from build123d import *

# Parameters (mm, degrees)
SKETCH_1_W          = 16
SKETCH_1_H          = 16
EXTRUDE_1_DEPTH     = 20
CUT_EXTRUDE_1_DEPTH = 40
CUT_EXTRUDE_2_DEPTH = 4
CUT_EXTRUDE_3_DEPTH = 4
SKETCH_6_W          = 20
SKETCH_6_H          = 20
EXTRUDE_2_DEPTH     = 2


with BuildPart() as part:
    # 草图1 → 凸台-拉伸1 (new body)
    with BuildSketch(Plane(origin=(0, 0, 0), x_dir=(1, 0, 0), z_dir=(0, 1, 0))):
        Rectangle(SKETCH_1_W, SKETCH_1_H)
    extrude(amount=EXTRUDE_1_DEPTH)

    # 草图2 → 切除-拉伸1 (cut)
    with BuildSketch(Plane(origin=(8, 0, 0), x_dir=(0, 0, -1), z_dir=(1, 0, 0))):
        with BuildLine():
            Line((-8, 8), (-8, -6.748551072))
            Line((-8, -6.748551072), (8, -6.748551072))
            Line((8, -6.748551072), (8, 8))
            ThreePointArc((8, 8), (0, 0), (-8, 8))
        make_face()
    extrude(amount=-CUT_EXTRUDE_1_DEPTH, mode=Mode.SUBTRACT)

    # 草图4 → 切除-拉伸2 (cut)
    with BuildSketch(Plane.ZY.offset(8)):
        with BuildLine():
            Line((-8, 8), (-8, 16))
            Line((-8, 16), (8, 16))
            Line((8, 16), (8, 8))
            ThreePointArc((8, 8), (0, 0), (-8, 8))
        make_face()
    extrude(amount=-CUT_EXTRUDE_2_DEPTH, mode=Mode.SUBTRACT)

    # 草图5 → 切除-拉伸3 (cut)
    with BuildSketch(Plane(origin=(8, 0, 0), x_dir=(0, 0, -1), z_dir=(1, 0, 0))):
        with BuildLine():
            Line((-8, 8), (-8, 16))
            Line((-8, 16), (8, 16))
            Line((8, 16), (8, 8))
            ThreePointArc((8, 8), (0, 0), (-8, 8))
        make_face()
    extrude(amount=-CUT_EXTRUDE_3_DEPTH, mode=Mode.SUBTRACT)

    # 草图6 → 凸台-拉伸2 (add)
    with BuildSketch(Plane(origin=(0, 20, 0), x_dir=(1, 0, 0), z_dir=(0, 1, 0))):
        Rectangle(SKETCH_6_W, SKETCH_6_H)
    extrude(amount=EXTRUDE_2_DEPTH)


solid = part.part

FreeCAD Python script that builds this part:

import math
import FreeCAD as App
import Part
import Sketcher
Q = App.Units.Quantity


def add_polygon(sketch, points):
    """Adds a closed chain of lines whose ends are joined by coincident constraints."""
    first, n = sketch.GeometryCount, len(points)
    for a, b in zip(points, points[1:] + points[:1]):
        sketch.addGeometry(Part.LineSegment(App.Vector(*a, 0), App.Vector(*b, 0)), False)
    for i in range(n):
        sketch.addConstraint(Sketcher.Constraint("Coincident", first + i, 2, first + (i + 1) % n, 1))

doc = App.newDocument("Part")
body = doc.addObject("PartDesign::Body", "Body")

sketch1 = body.newObject("Sketcher::SketchObject", "Sketch")
sketch1.AttachmentSupport = (doc.getObject("XZ_Plane"), [""])
sketch1.MapMode = "FlatFace"
add_polygon(sketch1, [(-8, -8), (-8, 8), (8, 8), (8, -8)])
sketch1.addConstraint([
    Sketcher.Constraint("Vertical", 0),
    Sketcher.Constraint("Horizontal", 1),
    Sketcher.Constraint("Vertical", 2),
    Sketcher.Constraint("Horizontal", 3),
    Sketcher.Constraint("Symmetric", 0, 2, 2, 2, -1, 1),
    Sketcher.Constraint("Equal", 3, 0),
    Sketcher.Constraint("DistanceX", 1, 1, 1, 2, Q("16 mm")),
])
pad1 = body.newObject("PartDesign::Pad", "Pad")
pad1.Profile = sketch1
pad1.Length = 20
pad1.Reversed = True

sketch2 = body.newObject("Sketcher::SketchObject", "Sketch001")
sketch2.AttachmentSupport = (doc.getObject("YZ_Plane"), [""])
sketch2.MapMode = "FlatFace"
sketch2.AttachmentOffset = App.Placement(App.Vector(0, 0, 8), App.Rotation())
sketch2.addGeometry([
    Part.LineSegment(App.Vector(8, 8, 0), App.Vector(-7, 8, 0)),
    Part.LineSegment(App.Vector(-7, 8, 0), App.Vector(-7, -8, 0)),
    Part.LineSegment(App.Vector(-7, -8, 0), App.Vector(8, -8, 0)),
    Part.ArcOfCircle(Part.Circle(App.Vector(8, 0, 0), App.Vector(0, 0, 1), 8), math.radians(90), math.radians(270)),
], False)
sketch2.addConstraint([
    Sketcher.Constraint("Coincident", 0, 2, 1, 1),
    Sketcher.Constraint("Coincident", 1, 2, 2, 1),
    Sketcher.Constraint("Tangent", 2, 2, 3, 2),
    Sketcher.Constraint("Tangent", 3, 1, 0, 1),
    Sketcher.Constraint("Horizontal", 0),
    Sketcher.Constraint("Vertical", 1),
    Sketcher.Constraint("Horizontal", 2),
    Sketcher.Constraint("PointOnObject", 3, 3, -1),
    Sketcher.Constraint("Radius", 3, Q("8 mm")),
    Sketcher.Constraint("DistanceX", -1, 1, 3, 3, Q("8 mm")),
    Sketcher.Constraint("DistanceX", 0, 2, 0, 1, Q("14.748551 mm")),
])
pocket1 = body.newObject("PartDesign::Pocket", "Pocket")
pocket1.Profile = sketch2
pocket1.Length = 40

sketch3 = body.newObject("Sketcher::SketchObject", "Sketch002")
sketch3.AttachmentSupport = (doc.getObject("YZ_Plane"), [""])
sketch3.MapMode = "FlatFace"
sketch3.AttachmentOffset = App.Placement(App.Vector(0, 0, -8), App.Rotation())
sketch3.addGeometry([
    Part.LineSegment(App.Vector(16, -8, 0), App.Vector(8, -8, 0)),
    Part.ArcOfCircle(Part.Circle(App.Vector(8, 0, 0), App.Vector(0, 0, 1), 8), math.radians(90), math.radians(270)),
    Part.LineSegment(App.Vector(8, 8, 0), App.Vector(16, 8, 0)),
    Part.LineSegment(App.Vector(16, 8, 0), App.Vector(16, -8, 0)),
], False)
sketch3.addConstraint([
    Sketcher.Constraint("Tangent", 0, 2, 1, 2),
    Sketcher.Constraint("Tangent", 1, 1, 2, 1),
    Sketcher.Constraint("Coincident", 2, 2, 3, 1),
    Sketcher.Constraint("Coincident", 3, 2, 0, 1),
    Sketcher.Constraint("Horizontal", 0),
    Sketcher.Constraint("Horizontal", 2),
    Sketcher.Constraint("Vertical", 3),
    Sketcher.Constraint("PointOnObject", 1, 3, -1),
    Sketcher.Constraint("Radius", 1, Q("8 mm")),
    Sketcher.Constraint("DistanceX", 0, 2, 0, 1, Q("8 mm")),
    Sketcher.Constraint("DistanceX", -1, 1, 1, 3, Q("8 mm")),
])
pocket2 = body.newObject("PartDesign::Pocket", "Pocket001")
pocket2.Profile = sketch3
pocket2.Length = 4
pocket2.Reversed = True

sketch4 = body.newObject("Sketcher::SketchObject", "Sketch003")
sketch4.AttachmentSupport = (doc.getObject("YZ_Plane"), [""])
sketch4.MapMode = "FlatFace"
sketch4.AttachmentOffset = App.Placement(App.Vector(0, 0, 8), App.Rotation())
sketch4.addGeometry([
    Part.LineSegment(App.Vector(16, 8, 0), App.Vector(8, 8, 0)),
    Part.ArcOfCircle(Part.Circle(App.Vector(8, 0, 0), App.Vector(0, 0, 1), 8), math.radians(90), math.radians(270)),
    Part.LineSegment(App.Vector(8, -8, 0), App.Vector(16, -8, 0)),
    Part.LineSegment(App.Vector(16, -8, 0), App.Vector(16, 8, 0)),
], False)
sketch4.addConstraint([
    Sketcher.Constraint("Tangent", 0, 2, 1, 1),
    Sketcher.Constraint("Tangent", 1, 2, 2, 1),
    Sketcher.Constraint("Coincident", 2, 2, 3, 1),
    Sketcher.Constraint("Coincident", 3, 2, 0, 1),
    Sketcher.Constraint("Horizontal", 0),
    Sketcher.Constraint("Horizontal", 2),
    Sketcher.Constraint("Vertical", 3),
    Sketcher.Constraint("PointOnObject", 1, 3, -1),
    Sketcher.Constraint("Radius", 1, Q("8 mm")),
    Sketcher.Constraint("DistanceX", 0, 2, 0, 1, Q("8 mm")),
    Sketcher.Constraint("DistanceX", -1, 1, 1, 3, Q("8 mm")),
])
pocket3 = body.newObject("PartDesign::Pocket", "Pocket002")
pocket3.Profile = sketch4
pocket3.Length = 4

sketch5 = body.newObject("Sketcher::SketchObject", "Sketch004")
sketch5.AttachmentSupport = (doc.getObject("XZ_Plane"), [""])
sketch5.MapMode = "FlatFace"
sketch5.AttachmentOffset = App.Placement(App.Vector(0, 0, -20), App.Rotation())
add_polygon(sketch5, [(-10, -10), (-10, 10), (10, 10), (10, -10)])
sketch5.addConstraint([
    Sketcher.Constraint("Vertical", 0),
    Sketcher.Constraint("Horizontal", 1),
    Sketcher.Constraint("Vertical", 2),
    Sketcher.Constraint("Horizontal", 3),
    Sketcher.Constraint("Symmetric", 0, 2, 2, 2, -1, 1),
    Sketcher.Constraint("Equal", 3, 0),
    Sketcher.Constraint("DistanceX", 1, 1, 1, 2, Q("20 mm")),
])
pad2 = body.newObject("PartDesign::Pad", "Pad001")
pad2.Profile = sketch5
pad2.Length = 2
pad2.Reversed = True

doc.recompute()
